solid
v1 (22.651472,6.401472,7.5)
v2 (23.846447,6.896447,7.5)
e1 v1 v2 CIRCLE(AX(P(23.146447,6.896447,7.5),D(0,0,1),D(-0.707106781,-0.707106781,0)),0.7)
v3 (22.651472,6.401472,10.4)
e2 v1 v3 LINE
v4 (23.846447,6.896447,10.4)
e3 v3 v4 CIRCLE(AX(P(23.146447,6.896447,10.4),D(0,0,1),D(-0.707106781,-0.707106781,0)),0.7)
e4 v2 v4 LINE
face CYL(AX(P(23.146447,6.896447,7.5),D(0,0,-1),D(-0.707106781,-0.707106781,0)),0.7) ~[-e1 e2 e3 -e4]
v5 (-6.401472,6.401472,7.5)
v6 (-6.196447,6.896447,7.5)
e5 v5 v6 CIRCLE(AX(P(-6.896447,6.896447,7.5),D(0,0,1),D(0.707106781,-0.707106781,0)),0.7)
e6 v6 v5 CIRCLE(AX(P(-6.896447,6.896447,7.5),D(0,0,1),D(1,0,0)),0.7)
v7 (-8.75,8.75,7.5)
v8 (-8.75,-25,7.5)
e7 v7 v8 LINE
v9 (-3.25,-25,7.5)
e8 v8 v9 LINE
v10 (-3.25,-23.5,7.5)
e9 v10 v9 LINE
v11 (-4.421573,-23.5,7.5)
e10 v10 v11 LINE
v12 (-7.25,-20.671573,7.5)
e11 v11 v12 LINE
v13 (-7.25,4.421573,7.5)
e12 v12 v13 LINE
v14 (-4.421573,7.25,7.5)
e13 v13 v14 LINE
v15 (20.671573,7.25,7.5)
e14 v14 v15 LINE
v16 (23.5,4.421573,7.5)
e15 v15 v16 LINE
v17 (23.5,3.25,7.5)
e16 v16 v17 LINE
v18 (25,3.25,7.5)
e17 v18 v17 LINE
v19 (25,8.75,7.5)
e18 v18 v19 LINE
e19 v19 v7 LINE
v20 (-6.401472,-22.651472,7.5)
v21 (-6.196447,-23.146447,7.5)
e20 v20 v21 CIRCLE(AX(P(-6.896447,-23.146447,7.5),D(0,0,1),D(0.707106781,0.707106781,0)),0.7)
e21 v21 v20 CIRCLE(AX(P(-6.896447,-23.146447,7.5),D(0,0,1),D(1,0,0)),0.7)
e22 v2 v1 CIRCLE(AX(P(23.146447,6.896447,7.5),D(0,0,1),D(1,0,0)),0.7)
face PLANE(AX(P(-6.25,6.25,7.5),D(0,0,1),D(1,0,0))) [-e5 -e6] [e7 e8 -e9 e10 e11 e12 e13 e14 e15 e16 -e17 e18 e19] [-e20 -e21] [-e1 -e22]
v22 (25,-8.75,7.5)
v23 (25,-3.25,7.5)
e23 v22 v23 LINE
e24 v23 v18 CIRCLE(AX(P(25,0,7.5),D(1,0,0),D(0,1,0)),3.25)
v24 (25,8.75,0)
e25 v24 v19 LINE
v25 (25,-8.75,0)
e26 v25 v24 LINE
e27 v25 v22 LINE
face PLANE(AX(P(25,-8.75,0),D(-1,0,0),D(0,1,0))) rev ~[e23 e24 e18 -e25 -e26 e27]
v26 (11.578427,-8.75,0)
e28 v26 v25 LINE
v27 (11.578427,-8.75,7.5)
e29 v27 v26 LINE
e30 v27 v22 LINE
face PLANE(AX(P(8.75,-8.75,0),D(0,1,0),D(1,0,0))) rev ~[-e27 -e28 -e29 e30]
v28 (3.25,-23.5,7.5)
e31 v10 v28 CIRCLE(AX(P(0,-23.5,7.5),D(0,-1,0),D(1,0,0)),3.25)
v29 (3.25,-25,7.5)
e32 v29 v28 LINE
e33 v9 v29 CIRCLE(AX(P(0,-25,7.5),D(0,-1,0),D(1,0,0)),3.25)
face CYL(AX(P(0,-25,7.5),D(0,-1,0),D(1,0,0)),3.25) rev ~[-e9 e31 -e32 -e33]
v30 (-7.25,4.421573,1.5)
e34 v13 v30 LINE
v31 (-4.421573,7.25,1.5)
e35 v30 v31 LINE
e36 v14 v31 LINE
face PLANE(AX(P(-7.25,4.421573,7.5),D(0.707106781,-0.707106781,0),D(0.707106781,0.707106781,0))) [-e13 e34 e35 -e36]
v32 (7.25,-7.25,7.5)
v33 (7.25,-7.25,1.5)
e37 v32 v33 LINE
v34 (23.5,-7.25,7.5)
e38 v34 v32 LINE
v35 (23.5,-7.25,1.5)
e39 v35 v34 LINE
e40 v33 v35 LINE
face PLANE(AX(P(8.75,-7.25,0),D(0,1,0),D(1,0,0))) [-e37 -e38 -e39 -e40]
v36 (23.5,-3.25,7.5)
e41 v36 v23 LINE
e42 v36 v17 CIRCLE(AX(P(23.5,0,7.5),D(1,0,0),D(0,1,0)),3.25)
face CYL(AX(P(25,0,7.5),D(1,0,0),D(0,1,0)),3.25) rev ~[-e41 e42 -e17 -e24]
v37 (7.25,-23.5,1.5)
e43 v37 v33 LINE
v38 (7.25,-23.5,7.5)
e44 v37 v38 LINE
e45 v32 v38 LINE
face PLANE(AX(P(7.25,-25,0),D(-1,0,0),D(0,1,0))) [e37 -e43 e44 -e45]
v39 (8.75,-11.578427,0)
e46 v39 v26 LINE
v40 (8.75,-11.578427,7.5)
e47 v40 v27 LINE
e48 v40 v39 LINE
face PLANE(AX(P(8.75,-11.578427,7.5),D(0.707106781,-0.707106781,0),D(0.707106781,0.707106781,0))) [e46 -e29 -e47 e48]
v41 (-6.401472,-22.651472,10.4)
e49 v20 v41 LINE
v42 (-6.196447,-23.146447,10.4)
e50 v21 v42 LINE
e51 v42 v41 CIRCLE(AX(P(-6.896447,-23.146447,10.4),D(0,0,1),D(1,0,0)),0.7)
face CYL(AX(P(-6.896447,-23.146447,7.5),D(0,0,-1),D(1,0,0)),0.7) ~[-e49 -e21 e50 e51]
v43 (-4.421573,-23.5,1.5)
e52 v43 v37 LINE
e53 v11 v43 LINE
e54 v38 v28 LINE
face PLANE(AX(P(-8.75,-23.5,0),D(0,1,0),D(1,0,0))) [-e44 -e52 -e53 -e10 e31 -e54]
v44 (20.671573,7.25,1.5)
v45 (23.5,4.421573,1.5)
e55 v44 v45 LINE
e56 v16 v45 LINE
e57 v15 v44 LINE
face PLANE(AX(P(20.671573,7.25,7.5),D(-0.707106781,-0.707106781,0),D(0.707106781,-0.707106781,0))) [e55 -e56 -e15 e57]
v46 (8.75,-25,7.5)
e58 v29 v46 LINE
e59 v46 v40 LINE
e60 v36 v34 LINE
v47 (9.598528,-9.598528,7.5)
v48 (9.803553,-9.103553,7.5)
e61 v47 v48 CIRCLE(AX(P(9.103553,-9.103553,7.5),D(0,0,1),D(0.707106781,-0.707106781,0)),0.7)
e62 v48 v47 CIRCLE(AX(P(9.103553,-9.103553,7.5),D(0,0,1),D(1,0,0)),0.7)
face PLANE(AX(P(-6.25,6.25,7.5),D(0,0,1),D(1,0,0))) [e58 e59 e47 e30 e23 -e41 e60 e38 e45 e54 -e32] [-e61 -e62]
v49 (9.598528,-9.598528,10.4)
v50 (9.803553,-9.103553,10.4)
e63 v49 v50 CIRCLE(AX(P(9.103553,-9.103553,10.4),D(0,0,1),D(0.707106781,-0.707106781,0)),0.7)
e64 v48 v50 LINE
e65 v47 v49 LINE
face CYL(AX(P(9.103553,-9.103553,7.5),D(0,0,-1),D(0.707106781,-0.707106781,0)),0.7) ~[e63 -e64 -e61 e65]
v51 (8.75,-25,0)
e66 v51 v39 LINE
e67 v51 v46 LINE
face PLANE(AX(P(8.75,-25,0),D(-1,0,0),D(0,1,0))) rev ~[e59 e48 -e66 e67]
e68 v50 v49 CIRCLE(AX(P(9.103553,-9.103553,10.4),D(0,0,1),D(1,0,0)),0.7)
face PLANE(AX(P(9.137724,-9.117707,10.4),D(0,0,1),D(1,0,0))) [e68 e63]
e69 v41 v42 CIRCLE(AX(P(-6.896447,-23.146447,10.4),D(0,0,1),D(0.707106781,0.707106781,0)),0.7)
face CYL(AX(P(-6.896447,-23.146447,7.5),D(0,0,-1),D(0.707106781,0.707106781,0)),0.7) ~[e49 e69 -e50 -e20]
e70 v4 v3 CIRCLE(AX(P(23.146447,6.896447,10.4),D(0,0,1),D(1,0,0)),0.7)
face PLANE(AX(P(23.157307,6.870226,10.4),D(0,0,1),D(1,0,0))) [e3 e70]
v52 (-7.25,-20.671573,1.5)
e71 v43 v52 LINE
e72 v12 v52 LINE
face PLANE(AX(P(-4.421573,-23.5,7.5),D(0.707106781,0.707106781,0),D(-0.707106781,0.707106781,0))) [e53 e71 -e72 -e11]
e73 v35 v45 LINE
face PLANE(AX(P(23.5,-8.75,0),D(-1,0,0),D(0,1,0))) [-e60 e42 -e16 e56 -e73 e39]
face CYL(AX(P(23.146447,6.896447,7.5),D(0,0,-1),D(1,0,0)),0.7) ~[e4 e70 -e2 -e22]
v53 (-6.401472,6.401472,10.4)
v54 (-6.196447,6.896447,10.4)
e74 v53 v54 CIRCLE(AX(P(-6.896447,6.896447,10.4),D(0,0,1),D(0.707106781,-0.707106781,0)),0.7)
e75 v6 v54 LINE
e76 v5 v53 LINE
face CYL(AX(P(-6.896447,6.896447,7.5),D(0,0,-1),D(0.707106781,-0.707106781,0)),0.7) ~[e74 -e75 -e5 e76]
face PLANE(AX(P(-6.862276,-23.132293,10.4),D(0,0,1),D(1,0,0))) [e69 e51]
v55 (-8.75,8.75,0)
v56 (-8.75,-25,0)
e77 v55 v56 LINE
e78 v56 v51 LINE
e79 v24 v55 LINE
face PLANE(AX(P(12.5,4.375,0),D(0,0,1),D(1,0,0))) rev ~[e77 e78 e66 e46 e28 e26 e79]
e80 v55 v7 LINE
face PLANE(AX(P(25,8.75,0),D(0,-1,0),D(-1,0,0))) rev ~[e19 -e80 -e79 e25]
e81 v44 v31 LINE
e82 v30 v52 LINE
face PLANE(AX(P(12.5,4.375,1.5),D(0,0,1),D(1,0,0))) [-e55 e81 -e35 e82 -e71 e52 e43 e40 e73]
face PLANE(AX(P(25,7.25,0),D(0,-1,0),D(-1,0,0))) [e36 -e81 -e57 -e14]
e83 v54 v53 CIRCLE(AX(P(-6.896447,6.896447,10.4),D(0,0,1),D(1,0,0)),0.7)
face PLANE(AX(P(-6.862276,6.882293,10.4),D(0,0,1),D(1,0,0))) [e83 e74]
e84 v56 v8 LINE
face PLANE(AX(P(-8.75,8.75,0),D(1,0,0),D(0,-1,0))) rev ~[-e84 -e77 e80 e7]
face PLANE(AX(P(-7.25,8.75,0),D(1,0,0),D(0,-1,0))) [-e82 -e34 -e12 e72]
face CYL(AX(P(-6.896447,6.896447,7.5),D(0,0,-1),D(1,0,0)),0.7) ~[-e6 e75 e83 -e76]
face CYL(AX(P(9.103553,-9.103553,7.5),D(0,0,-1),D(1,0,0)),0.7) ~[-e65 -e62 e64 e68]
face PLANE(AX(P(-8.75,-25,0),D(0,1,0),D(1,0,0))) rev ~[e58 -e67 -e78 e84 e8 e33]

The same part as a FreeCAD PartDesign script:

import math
import FreeCAD as App
import Part
import Sketcher
from FreeCAD import Vector
Q = App.Units.Quantity


def faces_at(feature, points):
    """Names of the faces that lie closest to the given points."""
    faces = feature.Shape.Faces
    near = lambda p: min(range(len(faces)), key=lambda i: faces[i].distToShape(Part.Vertex(*p))[0])
    return sorted({f"Face{near(p) + 1}" for p in points})

doc = App.newDocument("Part")
body = doc.addObject("PartDesign::Body", "Body")

sketch1 = doc.addObject("Sketcher::SketchObject", "Sketch")
body.addObject(sketch1)
sketch1.AttachmentSupport = (doc.XY_Plane, [""])
sketch1.MapMode = "FlatFace"
sketch1.addGeometry(Part.LineSegment(Vector(25, 9, 0), Vector(-9, 9, 0)), False)
sketch1.addGeometry(Part.LineSegment(Vector(-9, 9, 0), Vector(-9, -25, 0)), False)
sketch1.addGeometry(Part.LineSegment(Vector(-9, -25, 0), Vector(9, -25, 0)), False)
sketch1.addGeometry(Part.LineSegment(Vector(9, -25, 0), Vector(9, -9, 0)), False)
sketch1.addGeometry(Part.LineSegment(Vector(9, -9, 0), Vector(25, -9, 0)), False)
sketch1.addGeometry(Part.LineSegment(Vector(25, -9, 0), Vector(25, 9, 0)), False)
sketch1.addConstraint(Sketcher.Constraint("Coincident", 0, 2, 1, 1))
sketch1.addConstraint(Sketcher.Constraint("Coincident", 1, 2, 2, 1))
sketch1.addConstraint(Sketcher.Constraint("Coincident", 2, 2, 3, 1))
sketch1.addConstraint(Sketcher.Constraint("Coincident", 3, 2, 4, 1))
sketch1.addConstraint(Sketcher.Constraint("Coincident", 4, 2, 5, 1))
sketch1.addConstraint(Sketcher.Constraint("Coincident", 5, 2, 0, 1))
sketch1.addConstraint(Sketcher.Constraint("Horizontal", 0))
sketch1.addConstraint(Sketcher.Constraint("Vertical", 1))
sketch1.addConstraint(Sketcher.Constraint("Horizontal", 2))
sketch1.addConstraint(Sketcher.Constraint("Vertical", 3))
sketch1.addConstraint(Sketcher.Constraint("Horizontal", 4))
sketch1.addConstraint(Sketcher.Constraint("Vertical", 5))
sketch1.addConstraint(Sketcher.Constraint("Symmetric", 0, 2, 3, 2, -1, 1))
sketch1.addConstraint(Sketcher.Constraint("Equal", 0, 1))
sketch1.addConstraint(Sketcher.Constraint("Equal", 4, 3))
sketch1.addConstraint(Sketcher.Constraint("DistanceX", 2, 1, 2, 2, Q("17.5 mm")))
sketch1.addConstraint(Sketcher.Constraint("DistanceY", 1, 2, -1, 1, Q("25 mm")))
pad1 = doc.addObject("PartDesign::Pad", "Pad")
body.addObject(pad1)
pad1.Profile = sketch1
pad1.Length = 7.5
doc.recompute()

thickness = doc.addObject("PartDesign::Thickness", "Thickness")
body.addObject(thickness)
thickness.Base = (pad1, faces_at(pad1, [(8.125, -8.125, 7.5)]))
thickness.Value = 1.5
thickness.Reversed = True
thickness.Join = "Intersection"

sketch2 = doc.addObject("Sketcher::SketchObject", "Sketch001")
body.addObject(sketch2)
sketch2.AttachmentSupport = (doc.XY_Plane, [""])
sketch2.MapMode = "FlatFace"
sketch2.AttachmentOffset = App.Placement(Vector(0, 0, 7.5), App.Rotation())
sketch2.addGeometry(Part.LineSegment(Vector(-4.4, 7.2, 0), Vector(-7.2, 7.2, 0)), False)
sketch2.addGeometry(Part.LineSegment(Vector(-7.2, 7.2, 0), Vector(-7.2, 4.4, 0)), False)
sketch2.addGeometry(Part.LineSegment(Vector(-7.2, 4.4, 0), Vector(-4.4, 7.2, 0)), False)
sketch2.addGeometry(Part.LineSegment(Vector(11.6, -8.8, 0), Vector(8.8, -8.8, 0)), False)
sketch2.addGeometry(Part.LineSegment(Vector(8.8, -8.8, 0), Vector(8.8, -11.6, 0)), False)
sketch2.addGeometry(Part.LineSegment(Vector(8.8, -11.6, 0), Vector(11.6, -8.8, 0)), False)
sketch2.addGeometry(Part.LineSegment(Vector(23.5, 7.2, 0), Vector(20.7, 7.2, 0)), False)
sketch2.addGeometry(Part.LineSegment(Vector(20.7, 7.2, 0), Vector(23.5, 4.4, 0)), False)
sketch2.addGeometry(Part.LineSegment(Vector(23.5, 4.4, 0), Vector(23.5, 7.2, 0)), False)
sketch2.addGeometry(Part.LineSegment(Vector(-4.4, -23.5, 0), Vector(-7.2, -20.7, 0)), False)
sketch2.addGeometry(Part.LineSegment(Vector(-7.2, -20.7, 0), Vector(-7.2, -23.5, 0)), False)
sketch2.addGeometry(Part.LineSegment(Vector(-7.2, -23.5, 0), Vector(-4.4, -23.5, 0)), False)
sketch2.addConstraint(Sketcher.Constraint("Coincident", 0, 2, 1, 1))
sketch2.addConstraint(Sketcher.Constraint("Coincident", 1, 2, 2, 1))
sketch2.addConstraint(Sketcher.Constraint("Coincident", 2, 2, 0, 1))
sketch2.addConstraint(Sketcher.Constraint("Coincident", 3, 2, 4, 1))
sketch2.addConstraint(Sketcher.Constraint("Coincident", 4, 2, 5, 1))
sketch2.addConstraint(Sketcher.Constraint("Coincident", 5, 2, 3, 1))
sketch2.addConstraint(Sketcher.Constraint("Coincident", 6, 2, 7, 1))
sketch2.addConstraint(Sketcher.Constraint("Coincident", 7, 2, 8, 1))
sketch2.addConstraint(Sketcher.Constraint("Coincident", 8, 2, 6, 1))
sketch2.addConstraint(Sketcher.Constraint("Coincident", 9, 2, 10, 1))
sketch2.addConstraint(Sketcher.Constraint("Coincident", 10, 2, 11, 1))
sketch2.addConstraint(Sketcher.Constraint("Coincident", 11, 2, 9, 1))
sketch2.addConstraint(Sketcher.Constraint("Horizontal", 0))
sketch2.addConstraint(Sketcher.Constraint("Vertical", 1))
sketch2.addConstraint(Sketcher.Constraint("Horizontal", 3))
sketch2.addConstraint(Sketcher.Constraint("Vertical", 4))
sketch2.addConstraint(Sketcher.Constraint("Horizontal", 6))
sketch2.addConstraint(Sketcher.Constraint("Vertical", 8))
sketch2.addConstraint(Sketcher.Constraint("Vertical", 10))
sketch2.addConstraint(Sketcher.Constraint("Horizontal", 11))
sketch2.addConstraint(Sketcher.Constraint("Parallel", 2, 5))
sketch2.addConstraint(Sketcher.Constraint("Perpendicular", 5, 7))
sketch2.addConstraint(Sketcher.Constraint("Parallel", 7, 9))
sketch2.addConstraint(Sketcher.Constraint("Horizontal", 2, 2, 6, 2))
sketch2.addConstraint(Sketcher.Constraint("Horizontal", 1, 2, 7, 2))
sketch2.addConstraint(Sketcher.Constraint("Vertical", 1, 2, 9, 2))
sketch2.addConstraint(Sketcher.Constraint("Vertical", 2, 2, 11, 2))
sketch2.addConstraint(Sketcher.Constraint("Equal", 0, 3))
sketch2.addConstraint(Sketcher.Constraint("Equal", 3, 6))
sketch2.addConstraint(Sketcher.Constraint("Distance", 2, Q("4 mm")))
sketch2.addConstraint(Sketcher.Constraint("DistanceX", 1, 2, 3, 2, Q("16 mm")))
sketch2.addConstraint(Sketcher.Constraint("DistanceY", 3, 2, 2, 2, Q("16 mm")))
sketch2.addConstraint(Sketcher.Constraint("DistanceX", -1, 1, 7, 2, Q("23.5 mm")))
sketch2.addConstraint(Sketcher.Constraint("DistanceY", 10, 2, -1, 1, Q("23.5 mm")))
sketch2.addConstraint(Sketcher.Constraint("DistanceX", 0, 2, -1, 1, Q("7.25 mm")))
sketch2.addConstraint(Sketcher.Constraint("DistanceY", -1, 1, 0, 2, Q("7.25 mm")))
pad2 = doc.addObject("PartDesign::Pad", "Pad001")
body.addObject(pad2)
pad2.Profile = sketch2
pad2.Type = "UpToLast"
pad2.Reversed = True

sketch3 = doc.addObject("Sketcher::SketchObject", "Sketch002")
body.addObject(sketch3)
sketch3.AttachmentSupport = (doc.XY_Plane, [""])
sketch3.MapMode = "FlatFace"
sketch3.AttachmentOffset = App.Placement(Vector(0, 0, 7.5), App.Rotation())
sketch3.addGeometry(Part.ArcOfCircle(Part.Circle(Vector(-6.9, 6.9, 0), Vector(0, 0, 1), 0.7), math.radians(-45), math.radians(0)), False)
sketch3.addGeometry(Part.ArcOfCircle(Part.Circle(Vector(-6.9, 6.9, 0), Vector(0, 0, 1), 0.7), math.radians(0), math.radians(315)), False)
sketch3.addGeometry(Part.ArcOfCircle(Part.Circle(Vector(23.1, 6.9, 0), Vector(0, 0, 1), 0.7), math.radians(-135), math.radians(0)), False)
sketch3.addGeometry(Part.ArcOfCircle(Part.Circle(Vector(23.1, 6.9, 0), Vector(0, 0, 1), 0.7), math.radians(0), math.radians(225)), False)
sketch3.addGeometry(Part.ArcOfCircle(Part.Circle(Vector(9.1, -9.1, 0), Vector(0, 0, 1), 0.7), math.radians(-45), math.radians(0)), False)
sketch3.addGeometry(Part.ArcOfCircle(Part.Circle(Vector(9.1, -9.1, 0), Vector(0, 0, 1), 0.7), math.radians(0), math.radians(315)), False)
sketch3.addGeometry(Part.ArcOfCircle(Part.Circle(Vector(-6.9, -23.1, 0), Vector(0, 0, 1), 0.7), math.radians(45), math.radians(360)), False)
sketch3.addGeometry(Part.ArcOfCircle(Part.Circle(Vector(-6.9, -23.1, 0), Vector(0, 0, 1), 0.7), math.radians(0), math.radians(45)), False)
sketch3.addConstraint(Sketcher.Constraint("Tangent", 0, 1, 1, 2))
sketch3.addConstraint(Sketcher.Constraint("Coincident", 1, 1, 0, 2))
sketch3.addConstraint(Sketcher.Constraint("Tangent", 2, 1, 3, 2))
sketch3.addConstraint(Sketcher.Constraint("Coincident", 3, 1, 2, 2))
sketch3.addConstraint(Sketcher.Constraint("Tangent", 4, 1, 5, 2))
sketch3.addConstraint(Sketcher.Constraint("Coincident", 5, 1, 4, 2))
sketch3.addConstraint(Sketcher.Constraint("Tangent", 6, 1, 7, 2))
sketch3.addConstraint(Sketcher.Constraint("Coincident", 7, 1, 6, 2))
sketch3.addConstraint(Sketcher.Constraint("Equal", 1, 2))
sketch3.addConstraint(Sketcher.Constraint("Equal", 3, 4))
sketch3.addConstraint(Sketcher.Constraint("Equal", 5, 6))
sketch3.addConstraint(Sketcher.Constraint("Horizontal", 1, 3, 2, 3))
sketch3.addConstraint(Sketcher.Constraint("Horizontal", 3, 3, 1, 1))
sketch3.addConstraint(Sketcher.Constraint("Horizontal", 0, 1, 2, 1))
sketch3.addConstraint(Sketcher.Constraint("Horizontal", 1, 1, 3, 1))
sketch3.addConstraint(Sketcher.Constraint("Horizontal", 4, 3, 5, 1))
sketch3.addConstraint(Sketcher.Constraint("Horizontal", 6, 3, 7, 1))
sketch3.addConstraint(Sketcher.Constraint("Vertical", 1, 3, 6, 3))
sketch3.addConstraint(Sketcher.Constraint("Vertical", 0, 1, 6, 1))
sketch3.addConstraint(Sketcher.Constraint("Radius", 0, Q("0.7 mm")))
sketch3.addConstraint(Sketcher.Constraint("DistanceY", 4, 3, 2, 3, Q("16 mm")))
sketch3.addConstraint(Sketcher.Constraint("DistanceX", 0, 3, 4, 3, Q("16 mm")))
sketch3.addConstraint(Sketcher.Constraint("DistanceY", 4, 1, 2, 1, Q("16 mm")))
sketch3.addConstraint(Sketcher.Constraint("DistanceX", 0, 1, -1, 1, Q("6.401472 mm")))
sketch3.addConstraint(Sketcher.Constraint("DistanceY", -1, 1, 0, 1, Q("6.401472 mm")))
sketch3.addConstraint(Sketcher.Constraint("DistanceX", -1, 1, 2, 1, Q("22.651472 mm")))
sketch3.addConstraint(Sketcher.Constraint("DistanceY", 6, 1, -1, 1, Q("22.651472 mm")))
sketch3.addConstraint(Sketcher.Constraint("DistanceX", 0, 1, 2, 3, Q("29.547918 mm")))
pad3 = doc.addObject("PartDesign::Pad", "Pad002")
body.addObject(pad3)
pad3.Profile = sketch3
pad3.Length = 2.9

sketch4 = doc.addObject("Sketcher::SketchObject", "Sketch003")
body.addObject(sketch4)
sketch4.AttachmentSupport = (doc.XZ_Plane, [""])
sketch4.MapMode = "FlatFace"
sketch4.AttachmentOffset = App.Placement(Vector(0, 0, 25), App.Rotation())
sketch4.addGeometry(Part.Circle(Vector(0, 7.5, 0), Vector(0, 0, 1), 3.2), False)
sketch4.addConstraint(Sketcher.Constraint("PointOnObject", 0, 3, -2))
sketch4.addConstraint(Sketcher.Constraint("Diameter", 0, Q("6.5 mm")))
sketch4.addConstraint(Sketcher.Constraint("DistanceY", -1, 1, 0, 3, Q("7.5 mm")))
pocket1 = doc.addObject("PartDesign::Pocket", "Pocket")
body.addObject(pocket1)
pocket1.Profile = sketch4
pocket1.Length = 32.25

sketch5 = doc.addObject("Sketcher::SketchObject", "Sketch004")
body.addObject(sketch5)
sketch5.AttachmentSupport = (doc.YZ_Plane, [""])
sketch5.MapMode = "FlatFace"
sketch5.AttachmentOffset = App.Placement(Vector(0, 0, 25), App.Rotation())
sketch5.addGeometry(Part.Circle(Vector(0, 7.5, 0), Vector(0, 0, 1), 3.2), False)
sketch5.addConstraint(Sketcher.Constraint("PointOnObject", 0, 3, -2))
sketch5.addConstraint(Sketcher.Constraint("Diameter", 0, Q("6.5 mm")))
sketch5.addConstraint(Sketcher.Constraint("DistanceY", -1, 1, 0, 3, Q("7.5 mm")))
pocket2 = doc.addObject("PartDesign::Pocket", "Pocket001")
body.addObject(pocket2)
pocket2.Profile = sketch5
pocket2.Length = 32.25

doc.recompute()
